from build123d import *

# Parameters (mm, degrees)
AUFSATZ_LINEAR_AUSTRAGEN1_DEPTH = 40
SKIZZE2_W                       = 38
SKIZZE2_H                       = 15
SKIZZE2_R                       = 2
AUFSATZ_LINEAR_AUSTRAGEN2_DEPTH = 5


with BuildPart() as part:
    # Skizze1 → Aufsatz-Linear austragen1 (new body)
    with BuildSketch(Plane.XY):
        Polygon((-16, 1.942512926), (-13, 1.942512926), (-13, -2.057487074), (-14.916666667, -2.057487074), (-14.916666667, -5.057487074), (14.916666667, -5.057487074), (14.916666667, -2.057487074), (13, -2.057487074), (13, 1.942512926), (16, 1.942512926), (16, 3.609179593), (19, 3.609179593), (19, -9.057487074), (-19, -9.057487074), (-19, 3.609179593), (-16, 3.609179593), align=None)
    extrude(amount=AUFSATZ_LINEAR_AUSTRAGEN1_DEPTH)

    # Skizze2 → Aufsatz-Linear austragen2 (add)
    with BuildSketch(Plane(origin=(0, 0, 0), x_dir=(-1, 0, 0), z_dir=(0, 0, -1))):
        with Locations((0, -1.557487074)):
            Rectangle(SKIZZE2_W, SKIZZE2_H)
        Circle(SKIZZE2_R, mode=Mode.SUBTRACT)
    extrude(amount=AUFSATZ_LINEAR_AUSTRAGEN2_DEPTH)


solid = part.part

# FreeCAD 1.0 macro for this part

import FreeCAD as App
import Part
import Sketcher

doc = App.newDocument("Part")
params = doc.addObject("Spreadsheet::Sheet", "Params")
for row, (alias, value) in enumerate([
    ("sketch1_width", "3 mm"),
    ("sketch1_width2", "38 mm"),
    ("sketch1_height", "4 mm"),
    ("pad1_length", "40 mm"),
    ("sketch2_diameter", "4 mm"),
    ("sketch2_width", "38 mm"),
    ("sketch2_height", "15 mm"),
    ("pad2_length", "5 mm"),
], start=1):
    params.set(f"A{row}", alias)
    params.set(f"B{row}", "=" + value)
    params.setAlias(f"B{row}", alias)

body = doc.addObject("PartDesign::Body", "Body")

# Sketch on XY plane
sketch1 = doc.addObject("Sketcher::SketchObject", "Sketch")
body.addObject(sketch1)
sketch1.AttachmentSupport = (doc.XY_Plane, [""])
sketch1.MapMode = "FlatFace"
sketch1.addGeometry(Part.LineSegment(App.Vector(-13, 1.942513, 0), App.Vector(-16, 1.942513, 0)), False)
sketch1.addGeometry(Part.LineSegment(App.Vector(-16, 1.942513, 0), App.Vector(-16, 3.60918, 0)), False)
sketch1.addGeometry(Part.LineSegment(App.Vector(-16, 3.60918, 0), App.Vector(-19, 3.60918, 0)), False)
sketch1.addGeometry(Part.LineSegment(App.Vector(-19, 3.60918, 0), App.Vector(-19, -9.057487, 0)), False)
sketch1.addGeometry(Part.LineSegment(App.Vector(-19, -9.057487, 0), App.Vector(19, -9.057487, 0)), False)
sketch1.addGeometry(Part.LineSegment(App.Vector(19, -9.057487, 0), App.Vector(19, 3.60918, 0)), False)
sketch1.addGeometry(Part.LineSegment(App.Vector(19, 3.60918, 0), App.Vector(16, 3.60918, 0)), False)
sketch1.addGeometry(Part.LineSegment(App.Vector(16, 3.60918, 0), App.Vector(16, 1.942513, 0)), False)
sketch1.addGeometry(Part.LineSegment(App.Vector(16, 1.942513, 0), App.Vector(13, 1.942513, 0)), False)
sketch1.addGeometry(Part.LineSegment(App.Vector(13, 1.942513, 0), App.Vector(13, -2.057487, 0)), False)
sketch1.addGeometry(Part.LineSegment(App.Vector(13, -2.057487, 0), App.Vector(14.916667, -2.057487, 0)), False)
sketch1.addGeometry(Part.LineSegment(App.Vector(14.916667, -2.057487, 0), App.Vector(14.916667, -5.057487, 0)), False)
sketch1.addGeometry(Part.LineSegment(App.Vector(14.916667, -5.057487, 0), App.Vector(-14.916667, -5.057487, 0)), False)
sketch1.addGeometry(Part.LineSegment(App.Vector(-14.916667, -5.057487, 0), App.Vector(-14.916667, -2.057487, 0)), False)
sketch1.addGeometry(Part.LineSegment(App.Vector(-14.916667, -2.057487, 0), App.Vector(-13, -2.057487, 0)), False)
sketch1.addGeometry(Part.LineSegment(App.Vector(-13, -2.057487, 0), App.Vector(-13, 1.942513, 0)), False)
sketch1.addConstraint(Sketcher.Constraint("Coincident", 0, 2, 1, 1))
sketch1.addConstraint(Sketcher.Constraint("Coincident", 1, 2, 2, 1))
sketch1.addConstraint(Sketcher.Constraint("Coincident", 2, 2, 3, 1))
sketch1.addConstraint(Sketcher.Constraint("Coincident", 3, 2, 4, 1))
sketch1.addConstraint(Sketcher.Constraint("Coincident", 4, 2, 5, 1))
sketch1.addConstraint(Sketcher.Constraint("Coincident", 5, 2, 6, 1))
sketch1.addConstraint(Sketcher.Constraint("Coincident", 6, 2, 7, 1))
sketch1.addConstraint(Sketcher.Constraint("Coincident", 7, 2, 8, 1))
sketch1.addConstraint(Sketcher.Constraint("Coincident", 8, 2, 9, 1))
sketch1.addConstraint(Sketcher.Constraint("Coincident", 9, 2, 10, 1))
sketch1.addConstraint(Sketcher.Constraint("Coincident", 10, 2, 11, 1))
sketch1.addConstraint(Sketcher.Constraint("Coincident", 11, 2, 12, 1))
sketch1.addConstraint(Sketcher.Constraint("Coincident", 12, 2, 13, 1))
sketch1.addConstraint(Sketcher.Constraint("Coincident", 13, 2, 14, 1))
sketch1.addConstraint(Sketcher.Constraint("Coincident", 14, 2, 15, 1))
sketch1.addConstraint(Sketcher.Constraint("Coincident", 15, 2, 0, 1))
sketch1.addConstraint(Sketcher.Constraint("Horizontal", 0))
sketch1.addConstraint(Sketcher.Constraint("Vertical", 1))
sketch1.addConstraint(Sketcher.Constraint("Horizontal", 2))
sketch1.addConstraint(Sketcher.Constraint("Vertical", 3))
sketch1.addConstraint(Sketcher.Constraint("Horizontal", 4))
sketch1.addConstraint(Sketcher.Constraint("Vertical", 5))
sketch1.addConstraint(Sketcher.Constraint("Horizontal", 6))
sketch1.addConstraint(Sketcher.Constraint("Vertical", 7))
sketch1.addConstraint(Sketcher.Constraint("Horizontal", 8))
sketch1.addConstraint(Sketcher.Constraint("Vertical", 9))
sketch1.addConstraint(Sketcher.Constraint("Horizontal", 10))
sketch1.addConstraint(Sketcher.Constraint("Vertical", 11))
sketch1.addConstraint(Sketcher.Constraint("Horizontal", 12))
sketch1.addConstraint(Sketcher.Constraint("Vertical", 13))
sketch1.addConstraint(Sketcher.Constraint("Horizontal", 14))
sketch1.addConstraint(Sketcher.Constraint("Vertical", 15))
sketch1.addConstraint(Sketcher.Constraint("Symmetric", 2, 2, 5, 2, -2))
sketch1.addConstraint(Sketcher.Constraint("Symmetric", 0, 2, 7, 2, -2))
sketch1.addConstraint(Sketcher.Constraint("Symmetric", 10, 2, 13, 2, -2))
sketch1.addConstraint(Sketcher.Constraint("Equal", 0, 2))
sketch1.addConstraint(Sketcher.Constraint("Equal", 6, 8))
sketch1.addConstraint(Sketcher.Constraint("Equal", 8, 11))
sketch1.addConstraint(Sketcher.Constraint("DistanceX", 0, 2, 0, 1, 3.0))
sketch1.addConstraint(Sketcher.Constraint("DistanceX", 4, 1, 4, 2, 38.0))
sketch1.addConstraint(Sketcher.Constraint("DistanceY", 9, 2, 9, 1, 4.0))
sketch1.addConstraint(Sketcher.Constraint("DistanceY", 3, 2, 0, 2, 11.0))
sketch1.addConstraint(Sketcher.Constraint("DistanceX", 10, 1, 10, 2, 1.916667))
sketch1.addConstraint(Sketcher.Constraint("DistanceY", 1, 1, 1, 2, 1.666667))
sketch1.addConstraint(Sketcher.Constraint("DistanceY", -1, 1, 1, 2, 3.60918))
sketch1.setExpression("Constraints[38]", "Params.sketch1_width")
sketch1.setExpression("Constraints[39]", "Params.sketch1_width2")
sketch1.setExpression("Constraints[40]", "Params.sketch1_height")
pad1 = doc.addObject("PartDesign::Pad", "Pad")
body.addObject(pad1)
pad1.Profile = sketch1
pad1.setExpression("Length", "Params.pad1_length")

# Sketch on XY plane
sketch2 = doc.addObject("Sketcher::SketchObject", "Sketch001")
body.addObject(sketch2)
sketch2.AttachmentSupport = (doc.XY_Plane, [""])
sketch2.MapMode = "FlatFace"
sketch2.addGeometry(Part.LineSegment(App.Vector(19, 5.942513, 0), App.Vector(19, -9.057487, 0)), False)
sketch2.addGeometry(Part.LineSegment(App.Vector(19, -9.057487, 0), App.Vector(-19, -9.057487, 0)), False)
sketch2.addGeometry(Part.LineSegment(App.Vector(-19, -9.057487, 0), App.Vector(-19, 5.942513, 0)), False)
sketch2.addGeometry(Part.LineSegment(App.Vector(-19, 5.942513, 0), App.Vector(19, 5.942513, 0)), False)
sketch2.addGeometry(Part.Circle(App.Vector(0, 0, 0), App.Vector(0, 0, 1), 2), False)
sketch2.addConstraint(Sketcher.Constraint("Coincident", 0, 2, 1, 1))
sketch2.addConstraint(Sketcher.Constraint("Coincident", 1, 2, 2, 1))
sketch2.addConstraint(Sketcher.Constraint("Coincident", 2, 2, 3, 1))
sketch2.addConstraint(Sketcher.Constraint("Coincident", 3, 2, 0, 1))
sketch2.addConstraint(Sketcher.Constraint("Vertical", 0))
sketch2.addConstraint(Sketcher.Constraint("Horizontal", 1))
sketch2.addConstraint(Sketcher.Constraint("Vertical", 2))
sketch2.addConstraint(Sketcher.Constraint("Horizontal", 3))
sketch2.addConstraint(Sketcher.Constraint("Coincident", 4, 3, -1, 1))
sketch2.addConstraint(Sketcher.Constraint("Diameter", 4, 4.0))
sketch2.addConstraint(Sketcher.Constraint("DistanceX", 1, 2, 1, 1, 38.0))
sketch2.addConstraint(Sketcher.Constraint("DistanceY", 0, 2, 0, 1, 15.0))
sketch2.addConstraint(Sketcher.Constraint("DistanceX", -1, 1, 0, 2, 19.0))
sketch2.addConstraint(Sketcher.Constraint("DistanceY", 0, 2, -1, 1, 9.057487))
sketch2.setExpression("Constraints[9]", "Params.sketch2_diameter")
sketch2.setExpression("Constraints[10]", "Params.sketch2_width")
sketch2.setExpression("Constraints[11]", "Params.sketch2_height")
pad2 = doc.addObject("PartDesign::Pad", "Pad001")
body.addObject(pad2)
pad2.Profile = sketch2
pad2.setExpression("Length", "Params.pad2_length")
pad2.Reversed = True

doc.recompute()
